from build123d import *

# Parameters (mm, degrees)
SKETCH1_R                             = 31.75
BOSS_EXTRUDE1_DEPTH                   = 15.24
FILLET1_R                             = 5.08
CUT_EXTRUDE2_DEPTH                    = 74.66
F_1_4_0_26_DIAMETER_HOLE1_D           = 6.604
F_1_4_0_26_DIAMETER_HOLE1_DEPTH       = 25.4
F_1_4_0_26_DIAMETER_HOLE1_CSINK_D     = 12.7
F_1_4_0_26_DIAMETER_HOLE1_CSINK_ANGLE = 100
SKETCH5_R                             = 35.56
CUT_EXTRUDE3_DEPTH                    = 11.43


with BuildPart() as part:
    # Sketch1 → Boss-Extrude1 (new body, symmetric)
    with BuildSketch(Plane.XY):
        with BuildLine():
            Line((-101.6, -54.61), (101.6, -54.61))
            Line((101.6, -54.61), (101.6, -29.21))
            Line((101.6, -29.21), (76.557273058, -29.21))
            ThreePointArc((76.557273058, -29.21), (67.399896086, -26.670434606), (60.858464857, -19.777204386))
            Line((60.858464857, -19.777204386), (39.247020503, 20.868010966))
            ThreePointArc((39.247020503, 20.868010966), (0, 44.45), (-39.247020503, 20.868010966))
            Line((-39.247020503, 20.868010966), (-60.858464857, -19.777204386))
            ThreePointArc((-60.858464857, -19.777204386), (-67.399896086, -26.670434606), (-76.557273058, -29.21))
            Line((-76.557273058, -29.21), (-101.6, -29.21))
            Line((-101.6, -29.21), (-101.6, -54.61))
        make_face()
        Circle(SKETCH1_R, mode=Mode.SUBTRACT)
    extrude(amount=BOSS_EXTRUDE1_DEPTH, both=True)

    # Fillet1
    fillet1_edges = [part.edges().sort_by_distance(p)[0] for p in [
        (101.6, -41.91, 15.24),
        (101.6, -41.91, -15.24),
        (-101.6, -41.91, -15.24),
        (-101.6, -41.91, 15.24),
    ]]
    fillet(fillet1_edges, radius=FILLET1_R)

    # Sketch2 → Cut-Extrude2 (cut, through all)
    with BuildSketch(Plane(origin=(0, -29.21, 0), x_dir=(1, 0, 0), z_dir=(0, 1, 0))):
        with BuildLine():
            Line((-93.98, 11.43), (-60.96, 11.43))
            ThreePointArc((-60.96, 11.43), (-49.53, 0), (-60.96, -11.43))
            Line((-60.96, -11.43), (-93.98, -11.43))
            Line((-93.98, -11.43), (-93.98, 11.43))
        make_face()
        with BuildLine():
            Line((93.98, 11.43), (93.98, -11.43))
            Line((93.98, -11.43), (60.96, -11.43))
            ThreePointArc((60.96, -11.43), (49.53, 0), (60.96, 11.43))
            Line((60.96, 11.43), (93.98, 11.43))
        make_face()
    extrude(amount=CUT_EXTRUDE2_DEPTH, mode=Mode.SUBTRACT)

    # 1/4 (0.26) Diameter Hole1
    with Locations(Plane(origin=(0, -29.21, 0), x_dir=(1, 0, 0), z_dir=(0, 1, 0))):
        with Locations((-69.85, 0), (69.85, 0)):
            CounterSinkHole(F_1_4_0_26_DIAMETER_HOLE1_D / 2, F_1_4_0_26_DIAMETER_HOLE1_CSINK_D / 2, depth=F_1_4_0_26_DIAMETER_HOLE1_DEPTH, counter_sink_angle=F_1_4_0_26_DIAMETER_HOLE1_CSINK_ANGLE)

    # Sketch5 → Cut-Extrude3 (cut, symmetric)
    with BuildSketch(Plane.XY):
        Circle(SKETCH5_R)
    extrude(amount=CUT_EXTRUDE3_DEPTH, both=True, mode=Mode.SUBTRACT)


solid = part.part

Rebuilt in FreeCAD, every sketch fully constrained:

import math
import FreeCAD as App
import Part
import Sketcher

V = App.Vector
Q = App.Units.Quantity


def edges_at(feature, points):
    """Names of the edges that pass closest to the given points."""
    edges = feature.Shape.Edges
    near = lambda p: min(range(len(edges)), key=lambda i: edges[i].distToShape(Part.Vertex(*p))[0])
    return sorted({f"Edge{near(p) + 1}" for p in points})

doc = App.newDocument("Part")
body = doc.addObject("PartDesign::Body", "Body")

# Sketch on XY plane
sketch1 = body.newObject("Sketcher::SketchObject", "Sketch")
sketch1.AttachmentSupport = (doc.getObject("XY_Plane"), [""])
sketch1.MapMode = "FlatFace"
sketch1.addGeometry([
    Part.LineSegment(V(-101.6, -54.61, 0), V(101.6, -54.61, 0)),  # 0
    Part.LineSegment(V(101.6, -54.61, 0), V(101.6, -29.21, 0)),  # 1
    Part.LineSegment(V(101.6, -29.21, 0), V(76.557273, -29.21, 0)),  # 2
    Part.ArcOfCircle(Part.Circle(V(76.557273, -11.43, 0), V(0, 0, 1), 17.78), math.radians(-152), math.radians(-90)),  # 3
    Part.LineSegment(V(60.858465, -19.777204, 0), V(39.247021, 20.868011, 0)),  # 4
    Part.ArcOfCircle(Part.Circle(V(0, 0, 0), V(0, 0, 1), 44.45), math.radians(28), math.radians(152)),  # 5
    Part.LineSegment(V(-39.247021, 20.868011, 0), V(-60.858465, -19.777204, 0)),  # 6
    Part.ArcOfCircle(Part.Circle(V(-76.557273, -11.43, 0), V(0, 0, 1), 17.78), math.radians(-90), math.radians(-28)),  # 7
    Part.LineSegment(V(-76.557273, -29.21, 0), V(-101.6, -29.21, 0)),  # 8
    Part.LineSegment(V(-101.6, -29.21, 0), V(-101.6, -54.61, 0)),  # 9
    Part.Circle(V(0, 0, 0), V(0, 0, 1), 31.75),  # 10
], False)
sketch1.addConstraint([
    Sketcher.Constraint("Coincident", 0, 2, 1, 1),
    Sketcher.Constraint("Coincident", 1, 2, 2, 1),
    Sketcher.Constraint("Tangent", 2, 2, 3, 2),
    Sketcher.Constraint("Tangent", 3, 1, 4, 1),
    Sketcher.Constraint("Tangent", 4, 2, 5, 1),
    Sketcher.Constraint("Tangent", 5, 2, 6, 1),
    Sketcher.Constraint("Tangent", 6, 2, 7, 2),
    Sketcher.Constraint("Tangent", 7, 1, 8, 1),
    Sketcher.Constraint("Coincident", 8, 2, 9, 1),
    Sketcher.Constraint("Coincident", 9, 2, 0, 1),
    Sketcher.Constraint("Horizontal", 0),
    Sketcher.Constraint("Vertical", 1),
    Sketcher.Constraint("Horizontal", 2),
    Sketcher.Constraint("Horizontal", 8),
    Sketcher.Constraint("Vertical", 9),
    Sketcher.Constraint("Coincident", 5, 3, -1, 1),
    Sketcher.Constraint("Coincident", 10, 3, -1, 1),
    Sketcher.Constraint("Equal", 3, 7),
    Sketcher.Constraint("Symmetric", 3, 3, 7, 3, -2),
    Sketcher.Constraint("Equal", 2, 8),
    Sketcher.Constraint("Diameter", 10, Q("2.5 in")),
    Sketcher.Constraint("Radius", 3, Q("0.7 in")),
    Sketcher.Constraint("DistanceX", 0, 1, 0, 2, Q("8 in")),
    Sketcher.Constraint("DistanceY", 1, 1, 1, 2, Q("1 in")),
    Sketcher.Constraint("Radius", 5, Q("1.75 in")),
    Sketcher.Constraint("Angle", 4, Q("118 deg")),
    Sketcher.Constraint("DistanceY", 3, 3, -1, 1, Q("0.45 in")),
])
pad1 = body.newObject("PartDesign::Pad", "Pad")
pad1.Profile = sketch1
pad1.Length = Q("1.2 in")
pad1.Midplane = True
doc.recompute()

fillet = body.newObject("PartDesign::Fillet", "Fillet")
fillet.Base = (pad1, edges_at(pad1, [
    (101.6, -41.91, 15.24),
    (101.6, -41.91, -15.24),
    (-101.6, -41.91, -15.24),
    (-101.6, -41.91, 15.24),
]))
fillet.Radius = Q("0.2 in")

# Sketch on XZ plane
sketch2 = body.newObject("Sketcher::SketchObject", "Sketch001")
sketch2.AttachmentSupport = (doc.getObject("XZ_Plane"), [""])
sketch2.MapMode = "FlatFace"
sketch2.AttachmentOffset = App.Placement(V(0, 0, 1.15 * 25.4), App.Rotation())
sketch2.addGeometry([
    Part.LineSegment(V(-60.96, -11.43, 0), V(-93.98, -11.43, 0)),  # 0
    Part.LineSegment(V(-93.98, -11.43, 0), V(-93.98, 11.43, 0)),  # 1
    Part.LineSegment(V(-93.98, 11.43, 0), V(-60.96, 11.43, 0)),  # 2
    Part.ArcOfCircle(Part.Circle(V(-60.96, 0, 0), V(0, 0, 1), 11.43), math.radians(-90), math.radians(90)),  # 3
    Part.LineSegment(V(93.98, 11.43, 0), V(93.98, -11.43, 0)),  # 4
    Part.LineSegment(V(93.98, -11.43, 0), V(60.96, -11.43, 0)),  # 5
    Part.ArcOfCircle(Part.Circle(V(60.96, 0, 0), V(0, 0, 1), 11.43), math.radians(90), math.radians(270)),  # 6
    Part.LineSegment(V(60.96, 11.43, 0), V(93.98, 11.43, 0)),  # 7
], False)
sketch2.addConstraint([
    Sketcher.Constraint("Coincident", 0, 2, 1, 1),
    Sketcher.Constraint("Coincident", 1, 2, 2, 1),
    Sketcher.Constraint("Tangent", 2, 2, 3, 2),
    Sketcher.Constraint("Tangent", 3, 1, 0, 1),
    Sketcher.Constraint("Coincident", 4, 2, 5, 1),
    Sketcher.Constraint("Tangent", 5, 2, 6, 2),
    Sketcher.Constraint("Tangent", 6, 1, 7, 1),
    Sketcher.Constraint("Coincident", 7, 2, 4, 1),
    Sketcher.Constraint("Horizontal", 0),
    Sketcher.Constraint("Vertical", 1),
    Sketcher.Constraint("Horizontal", 2),
    Sketcher.Constraint("Vertical", 4),
    Sketcher.Constraint("Horizontal", 5),
    Sketcher.Constraint("Horizontal", 7),
    Sketcher.Constraint("Equal", 3, 6),
    Sketcher.Constraint("Symmetric", 3, 3, 6, 3, -1, 1),
    Sketcher.Constraint("Symmetric", 0, 2, 4, 2, -2),
    Sketcher.Constraint("Radius", 3, Q("0.45 in")),
    Sketcher.Constraint("DistanceX", 0, 2, 0, 1, Q("1.3 in")),
    Sketcher.Constraint("DistanceX", 3, 3, -1, 1, Q("2.4 in")),
])
pocket1 = body.newObject("PartDesign::Pocket", "Pocket")
pocket1.Profile = sketch2
pocket1.Type = "ThroughAll"

# Sketch on XZ plane
sketch3 = body.newObject("Sketcher::SketchObject", "Sketch002")
sketch3.AttachmentSupport = (doc.getObject("XZ_Plane"), [""])
sketch3.MapMode = "FlatFace"
sketch3.AttachmentOffset = App.Placement(V(0, 0, 1.15 * 25.4), App.Rotation())
sketch3.addGeometry([
    Part.Circle(V(-69.85, 0, 0), V(0, 0, 1), 3.302),
    Part.Circle(V(69.85, 0, 0), V(0, 0, 1), 3.302),
], False)
sketch3.addConstraint([
    Sketcher.Constraint("Equal", 0, 1),
    Sketcher.Constraint("Symmetric", 0, 3, 1, 3, -1, 1),
    Sketcher.Constraint("PointOnObject", 0, 3, -1),
    Sketcher.Constraint("Diameter", 0, Q("0.26 in")),
    Sketcher.Constraint("DistanceX", 0, 3, 1, 3, Q("5.5 in")),
])
doc.recompute()
hole = body.newObject("PartDesign::Hole", "Hole")
hole.Profile = sketch3
hole.ThreadType = "None"
hole.Diameter = Q("0.26 in")
hole.DepthType = "Dimension"
hole.Depth = Q("1 in")
hole.DrillPoint = "Flat"
hole.HoleCutType = "Countersink"
hole.HoleCutDiameter = Q("0.5 in")
hole.HoleCutCountersinkAngle = 100
hole.Reversed = True

# Sketch on XY plane
sketch4 = body.newObject("Sketcher::SketchObject", "Sketch003")
sketch4.AttachmentSupport = (doc.getObject("XY_Plane"), [""])
sketch4.MapMode = "FlatFace"
sketch4.addGeometry(Part.Circle(V(0, 0, 0), V(0, 0, 1), 35.56), False)
sketch4.addConstraint([
    Sketcher.Constraint("Coincident", 0, 3, -1, 1),
    Sketcher.Constraint("Diameter", 0, Q("2.8 in")),
])
pocket2 = body.newObject("PartDesign::Pocket", "Pocket001")
pocket2.Profile = sketch4
pocket2.Length = Q("0.9 in")
pocket2.Midplane = True

doc.recompute()
